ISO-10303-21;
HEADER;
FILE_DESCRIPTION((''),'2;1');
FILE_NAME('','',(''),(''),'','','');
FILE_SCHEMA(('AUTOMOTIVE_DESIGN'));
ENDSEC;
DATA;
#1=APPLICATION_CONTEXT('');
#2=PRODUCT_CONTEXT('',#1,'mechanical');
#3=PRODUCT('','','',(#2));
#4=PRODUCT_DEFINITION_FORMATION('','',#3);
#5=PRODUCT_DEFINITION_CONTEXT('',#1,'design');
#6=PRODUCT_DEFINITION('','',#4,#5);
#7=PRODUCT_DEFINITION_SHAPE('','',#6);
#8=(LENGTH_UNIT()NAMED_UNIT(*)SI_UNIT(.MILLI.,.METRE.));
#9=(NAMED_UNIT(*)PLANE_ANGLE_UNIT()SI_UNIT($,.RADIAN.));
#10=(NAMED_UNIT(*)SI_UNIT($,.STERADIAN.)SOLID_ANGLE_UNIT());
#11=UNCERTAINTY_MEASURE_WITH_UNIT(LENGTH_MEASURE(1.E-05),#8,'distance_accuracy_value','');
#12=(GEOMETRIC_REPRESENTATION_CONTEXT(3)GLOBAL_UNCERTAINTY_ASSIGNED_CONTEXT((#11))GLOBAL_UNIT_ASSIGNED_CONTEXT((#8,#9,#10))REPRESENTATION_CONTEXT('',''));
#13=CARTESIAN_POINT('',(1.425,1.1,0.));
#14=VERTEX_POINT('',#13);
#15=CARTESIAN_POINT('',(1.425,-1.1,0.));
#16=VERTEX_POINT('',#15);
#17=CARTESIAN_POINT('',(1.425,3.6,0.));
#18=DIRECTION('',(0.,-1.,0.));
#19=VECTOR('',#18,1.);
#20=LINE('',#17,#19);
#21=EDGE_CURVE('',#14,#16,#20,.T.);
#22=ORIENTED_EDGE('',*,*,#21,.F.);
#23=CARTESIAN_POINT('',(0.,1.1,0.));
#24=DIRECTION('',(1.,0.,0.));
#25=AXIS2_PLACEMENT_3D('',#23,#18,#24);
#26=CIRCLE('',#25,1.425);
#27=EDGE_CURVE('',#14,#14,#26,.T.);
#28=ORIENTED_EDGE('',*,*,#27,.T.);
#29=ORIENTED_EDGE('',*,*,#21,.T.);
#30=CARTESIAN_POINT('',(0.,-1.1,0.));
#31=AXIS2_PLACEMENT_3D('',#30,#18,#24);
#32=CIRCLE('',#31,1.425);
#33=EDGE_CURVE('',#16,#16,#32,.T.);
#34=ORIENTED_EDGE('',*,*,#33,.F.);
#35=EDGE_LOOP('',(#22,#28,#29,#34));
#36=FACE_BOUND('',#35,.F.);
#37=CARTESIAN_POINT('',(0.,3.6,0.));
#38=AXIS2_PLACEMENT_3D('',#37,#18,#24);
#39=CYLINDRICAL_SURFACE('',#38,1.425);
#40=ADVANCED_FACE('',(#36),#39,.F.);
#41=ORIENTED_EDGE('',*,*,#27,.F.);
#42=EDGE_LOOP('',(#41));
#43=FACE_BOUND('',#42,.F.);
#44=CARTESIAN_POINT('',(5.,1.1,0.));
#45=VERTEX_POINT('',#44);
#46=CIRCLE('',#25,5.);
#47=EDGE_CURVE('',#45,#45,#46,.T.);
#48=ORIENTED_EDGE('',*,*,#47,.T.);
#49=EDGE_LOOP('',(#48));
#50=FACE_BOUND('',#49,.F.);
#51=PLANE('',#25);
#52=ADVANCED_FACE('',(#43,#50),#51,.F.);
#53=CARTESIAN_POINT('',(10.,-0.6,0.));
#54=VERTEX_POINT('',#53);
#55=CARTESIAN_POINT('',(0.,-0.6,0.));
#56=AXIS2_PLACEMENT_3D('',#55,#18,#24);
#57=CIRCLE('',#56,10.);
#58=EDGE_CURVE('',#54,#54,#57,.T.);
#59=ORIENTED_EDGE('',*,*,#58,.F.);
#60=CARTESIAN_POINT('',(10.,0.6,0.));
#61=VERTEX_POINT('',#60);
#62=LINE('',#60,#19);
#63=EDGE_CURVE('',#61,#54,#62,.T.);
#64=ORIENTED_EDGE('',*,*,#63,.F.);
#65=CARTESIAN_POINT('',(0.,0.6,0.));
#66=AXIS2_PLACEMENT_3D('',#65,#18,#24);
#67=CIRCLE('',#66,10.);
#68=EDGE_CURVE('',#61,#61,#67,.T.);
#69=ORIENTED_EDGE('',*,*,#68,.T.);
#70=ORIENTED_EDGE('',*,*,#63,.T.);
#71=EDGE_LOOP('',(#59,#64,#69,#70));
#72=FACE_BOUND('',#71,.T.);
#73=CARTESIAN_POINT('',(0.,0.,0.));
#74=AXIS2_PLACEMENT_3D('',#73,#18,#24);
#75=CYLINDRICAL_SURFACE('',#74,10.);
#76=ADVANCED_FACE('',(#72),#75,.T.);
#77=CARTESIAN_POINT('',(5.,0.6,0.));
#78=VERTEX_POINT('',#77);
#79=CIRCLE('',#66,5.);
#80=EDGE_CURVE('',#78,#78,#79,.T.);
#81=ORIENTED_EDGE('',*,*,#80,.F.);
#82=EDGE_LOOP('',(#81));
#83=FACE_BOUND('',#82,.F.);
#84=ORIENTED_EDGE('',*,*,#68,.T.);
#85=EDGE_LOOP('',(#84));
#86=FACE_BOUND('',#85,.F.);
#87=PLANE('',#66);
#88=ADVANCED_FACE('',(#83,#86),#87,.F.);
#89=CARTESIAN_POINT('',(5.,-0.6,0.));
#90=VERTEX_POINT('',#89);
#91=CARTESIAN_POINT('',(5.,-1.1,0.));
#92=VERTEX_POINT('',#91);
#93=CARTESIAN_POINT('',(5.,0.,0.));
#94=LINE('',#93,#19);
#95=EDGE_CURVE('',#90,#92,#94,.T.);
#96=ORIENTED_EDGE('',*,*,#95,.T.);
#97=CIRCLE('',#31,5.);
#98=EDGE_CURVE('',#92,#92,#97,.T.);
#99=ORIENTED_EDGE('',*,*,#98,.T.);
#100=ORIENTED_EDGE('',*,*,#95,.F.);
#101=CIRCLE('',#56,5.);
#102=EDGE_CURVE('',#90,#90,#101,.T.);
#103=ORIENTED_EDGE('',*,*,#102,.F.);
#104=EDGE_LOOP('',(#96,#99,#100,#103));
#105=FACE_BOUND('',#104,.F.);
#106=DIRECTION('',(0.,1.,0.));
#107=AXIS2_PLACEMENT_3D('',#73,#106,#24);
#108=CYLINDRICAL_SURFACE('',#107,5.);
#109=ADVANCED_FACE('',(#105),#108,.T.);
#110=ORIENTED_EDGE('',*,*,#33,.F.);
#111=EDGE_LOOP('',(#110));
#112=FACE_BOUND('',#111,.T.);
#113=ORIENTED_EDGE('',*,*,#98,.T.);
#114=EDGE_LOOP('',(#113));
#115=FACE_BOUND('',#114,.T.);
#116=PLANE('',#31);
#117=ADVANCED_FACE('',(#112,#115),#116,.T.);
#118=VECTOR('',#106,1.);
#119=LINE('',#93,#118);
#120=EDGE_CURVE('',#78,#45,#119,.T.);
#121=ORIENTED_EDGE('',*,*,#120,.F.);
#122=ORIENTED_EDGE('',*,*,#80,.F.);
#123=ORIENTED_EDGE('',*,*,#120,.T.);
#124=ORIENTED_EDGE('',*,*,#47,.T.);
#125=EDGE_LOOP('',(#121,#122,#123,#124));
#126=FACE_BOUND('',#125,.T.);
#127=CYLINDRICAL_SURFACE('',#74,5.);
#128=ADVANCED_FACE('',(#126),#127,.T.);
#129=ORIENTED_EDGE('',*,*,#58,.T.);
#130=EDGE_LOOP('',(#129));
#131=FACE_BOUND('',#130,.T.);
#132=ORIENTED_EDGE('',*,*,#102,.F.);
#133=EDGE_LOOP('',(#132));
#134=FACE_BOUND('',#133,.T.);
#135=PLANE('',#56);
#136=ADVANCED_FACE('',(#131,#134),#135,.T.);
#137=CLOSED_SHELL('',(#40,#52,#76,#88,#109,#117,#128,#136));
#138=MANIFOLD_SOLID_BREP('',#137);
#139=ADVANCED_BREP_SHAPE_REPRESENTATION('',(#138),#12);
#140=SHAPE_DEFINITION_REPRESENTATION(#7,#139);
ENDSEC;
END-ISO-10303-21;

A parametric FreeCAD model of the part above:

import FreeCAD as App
import Part
import Sketcher
Q = App.Units.Quantity

doc = App.newDocument("Part")
body = doc.addObject("PartDesign::Body", "Body")

sketch1 = doc.addObject("Sketcher::SketchObject", "Sketch")
body.addObject(sketch1)
sketch1.AttachmentSupport = (doc.XZ_Plane, [""])
sketch1.MapMode = "FlatFace"
sketch1.addGeometry(Part.Circle(App.Vector(0, 0, 0), App.Vector(0, 0, 1), 5), False)
sketch1.addConstraint([
    Sketcher.Constraint("Coincident", 0, 3, -1, 1),
    Sketcher.Constraint("Diameter", 0, Q("10 mm")),
])
pad1 = doc.addObject("PartDesign::Pad", "Pad")
body.addObject(pad1)
pad1.Profile = sketch1
pad1.Length = 1.1

sketch2 = doc.addObject("Sketcher::SketchObject", "Sketch001")
body.addObject(sketch2)
sketch2.AttachmentSupport = (doc.XZ_Plane, [""])
sketch2.MapMode = "FlatFace"
sketch2.addGeometry([
    Part.Circle(App.Vector(0, 0, 0), App.Vector(0, 0, 1), 10),
    Part.Circle(App.Vector(0, 0, 0), App.Vector(0, 0, 1), 5),
], False)
sketch2.addConstraint([
    Sketcher.Constraint("Coincident", 0, 3, -1, 1),
    Sketcher.Constraint("Coincident", 1, 3, -1, 1),
    Sketcher.Constraint("Diameter", 0, Q("20 mm")),
    Sketcher.Constraint("Diameter", 1, Q("10 mm")),
])
pad2 = doc.addObject("PartDesign::Pad", "Pad001")
body.addObject(pad2)
pad2.Profile = sketch2
pad2.Length = 0.6

sketch3 = doc.addObject("Sketcher::SketchObject", "Sketch002")
body.addObject(sketch3)
sketch3.AttachmentSupport = (doc.XZ_Plane, [""])
sketch3.MapMode = "FlatFace"
sketch3.addGeometry([
    Part.Circle(App.Vector(0, 0, 0), App.Vector(0, 0, 1), 10),
    Part.Circle(App.Vector(0, 0, 0), App.Vector(0, 0, 1), 5),
], False)
sketch3.addConstraint([
    Sketcher.Constraint("Coincident", 0, 3, -1, 1),
    Sketcher.Constraint("Coincident", 1, 3, -1, 1),
    Sketcher.Constraint("Diameter", 0, Q("20 mm")),
    Sketcher.Constraint("Diameter", 1, Q("10 mm")),
])
pad3 = doc.addObject("PartDesign::Pad", "Pad002")
body.addObject(pad3)
pad3.Profile = sketch3
pad3.Length = 0.6
pad3.Reversed = True

sketch4 = doc.addObject("Sketcher::SketchObject", "Sketch003")
body.addObject(sketch4)
sketch4.AttachmentSupport = (doc.XZ_Plane, [""])
sketch4.MapMode = "FlatFace"
sketch4.addGeometry(Part.Circle(App.Vector(0, 0, 0), App.Vector(0, 0, 1), 5), False)
sketch4.addConstraint([
    Sketcher.Constraint("Coincident", 0, 3, -1, 1),
    Sketcher.Constraint("Diameter", 0, Q("10 mm")),
])
pad4 = doc.addObject("PartDesign::Pad", "Pad003")
body.addObject(pad4)
pad4.Profile = sketch4
pad4.Length = 1.1
pad4.Reversed = True

sketch5 = doc.addObject("Sketcher::SketchObject", "Sketch004")
body.addObject(sketch5)
sketch5.AttachmentSupport = (doc.XZ_Plane, [""])
sketch5.MapMode = "FlatFace"
sketch5.AttachmentOffset = App.Placement(App.Vector(0, 0, -1.1), App.Rotation())
sketch5.addGeometry(Part.Circle(App.Vector(0, 0, 0), App.Vector(0, 0, 1), 1.4), False)
sketch5.addConstraint([
    Sketcher.Constraint("Coincident", 0, 3, -1, 1),
    Sketcher.Constraint("Diameter", 0, Q("2.85 mm")),
])
doc.recompute()
hole = doc.addObject("PartDesign::Hole", "Hole")
body.addObject(hole)
hole.Profile = sketch5
hole.ThreadType = "None"
hole.Diameter = 2.85
hole.DepthType = "Dimension"
hole.Depth = 2.5
hole.DrillPoint = "Angled"
hole.DrillPointAngle = 118
hole.Reversed = True

doc.recompute()
